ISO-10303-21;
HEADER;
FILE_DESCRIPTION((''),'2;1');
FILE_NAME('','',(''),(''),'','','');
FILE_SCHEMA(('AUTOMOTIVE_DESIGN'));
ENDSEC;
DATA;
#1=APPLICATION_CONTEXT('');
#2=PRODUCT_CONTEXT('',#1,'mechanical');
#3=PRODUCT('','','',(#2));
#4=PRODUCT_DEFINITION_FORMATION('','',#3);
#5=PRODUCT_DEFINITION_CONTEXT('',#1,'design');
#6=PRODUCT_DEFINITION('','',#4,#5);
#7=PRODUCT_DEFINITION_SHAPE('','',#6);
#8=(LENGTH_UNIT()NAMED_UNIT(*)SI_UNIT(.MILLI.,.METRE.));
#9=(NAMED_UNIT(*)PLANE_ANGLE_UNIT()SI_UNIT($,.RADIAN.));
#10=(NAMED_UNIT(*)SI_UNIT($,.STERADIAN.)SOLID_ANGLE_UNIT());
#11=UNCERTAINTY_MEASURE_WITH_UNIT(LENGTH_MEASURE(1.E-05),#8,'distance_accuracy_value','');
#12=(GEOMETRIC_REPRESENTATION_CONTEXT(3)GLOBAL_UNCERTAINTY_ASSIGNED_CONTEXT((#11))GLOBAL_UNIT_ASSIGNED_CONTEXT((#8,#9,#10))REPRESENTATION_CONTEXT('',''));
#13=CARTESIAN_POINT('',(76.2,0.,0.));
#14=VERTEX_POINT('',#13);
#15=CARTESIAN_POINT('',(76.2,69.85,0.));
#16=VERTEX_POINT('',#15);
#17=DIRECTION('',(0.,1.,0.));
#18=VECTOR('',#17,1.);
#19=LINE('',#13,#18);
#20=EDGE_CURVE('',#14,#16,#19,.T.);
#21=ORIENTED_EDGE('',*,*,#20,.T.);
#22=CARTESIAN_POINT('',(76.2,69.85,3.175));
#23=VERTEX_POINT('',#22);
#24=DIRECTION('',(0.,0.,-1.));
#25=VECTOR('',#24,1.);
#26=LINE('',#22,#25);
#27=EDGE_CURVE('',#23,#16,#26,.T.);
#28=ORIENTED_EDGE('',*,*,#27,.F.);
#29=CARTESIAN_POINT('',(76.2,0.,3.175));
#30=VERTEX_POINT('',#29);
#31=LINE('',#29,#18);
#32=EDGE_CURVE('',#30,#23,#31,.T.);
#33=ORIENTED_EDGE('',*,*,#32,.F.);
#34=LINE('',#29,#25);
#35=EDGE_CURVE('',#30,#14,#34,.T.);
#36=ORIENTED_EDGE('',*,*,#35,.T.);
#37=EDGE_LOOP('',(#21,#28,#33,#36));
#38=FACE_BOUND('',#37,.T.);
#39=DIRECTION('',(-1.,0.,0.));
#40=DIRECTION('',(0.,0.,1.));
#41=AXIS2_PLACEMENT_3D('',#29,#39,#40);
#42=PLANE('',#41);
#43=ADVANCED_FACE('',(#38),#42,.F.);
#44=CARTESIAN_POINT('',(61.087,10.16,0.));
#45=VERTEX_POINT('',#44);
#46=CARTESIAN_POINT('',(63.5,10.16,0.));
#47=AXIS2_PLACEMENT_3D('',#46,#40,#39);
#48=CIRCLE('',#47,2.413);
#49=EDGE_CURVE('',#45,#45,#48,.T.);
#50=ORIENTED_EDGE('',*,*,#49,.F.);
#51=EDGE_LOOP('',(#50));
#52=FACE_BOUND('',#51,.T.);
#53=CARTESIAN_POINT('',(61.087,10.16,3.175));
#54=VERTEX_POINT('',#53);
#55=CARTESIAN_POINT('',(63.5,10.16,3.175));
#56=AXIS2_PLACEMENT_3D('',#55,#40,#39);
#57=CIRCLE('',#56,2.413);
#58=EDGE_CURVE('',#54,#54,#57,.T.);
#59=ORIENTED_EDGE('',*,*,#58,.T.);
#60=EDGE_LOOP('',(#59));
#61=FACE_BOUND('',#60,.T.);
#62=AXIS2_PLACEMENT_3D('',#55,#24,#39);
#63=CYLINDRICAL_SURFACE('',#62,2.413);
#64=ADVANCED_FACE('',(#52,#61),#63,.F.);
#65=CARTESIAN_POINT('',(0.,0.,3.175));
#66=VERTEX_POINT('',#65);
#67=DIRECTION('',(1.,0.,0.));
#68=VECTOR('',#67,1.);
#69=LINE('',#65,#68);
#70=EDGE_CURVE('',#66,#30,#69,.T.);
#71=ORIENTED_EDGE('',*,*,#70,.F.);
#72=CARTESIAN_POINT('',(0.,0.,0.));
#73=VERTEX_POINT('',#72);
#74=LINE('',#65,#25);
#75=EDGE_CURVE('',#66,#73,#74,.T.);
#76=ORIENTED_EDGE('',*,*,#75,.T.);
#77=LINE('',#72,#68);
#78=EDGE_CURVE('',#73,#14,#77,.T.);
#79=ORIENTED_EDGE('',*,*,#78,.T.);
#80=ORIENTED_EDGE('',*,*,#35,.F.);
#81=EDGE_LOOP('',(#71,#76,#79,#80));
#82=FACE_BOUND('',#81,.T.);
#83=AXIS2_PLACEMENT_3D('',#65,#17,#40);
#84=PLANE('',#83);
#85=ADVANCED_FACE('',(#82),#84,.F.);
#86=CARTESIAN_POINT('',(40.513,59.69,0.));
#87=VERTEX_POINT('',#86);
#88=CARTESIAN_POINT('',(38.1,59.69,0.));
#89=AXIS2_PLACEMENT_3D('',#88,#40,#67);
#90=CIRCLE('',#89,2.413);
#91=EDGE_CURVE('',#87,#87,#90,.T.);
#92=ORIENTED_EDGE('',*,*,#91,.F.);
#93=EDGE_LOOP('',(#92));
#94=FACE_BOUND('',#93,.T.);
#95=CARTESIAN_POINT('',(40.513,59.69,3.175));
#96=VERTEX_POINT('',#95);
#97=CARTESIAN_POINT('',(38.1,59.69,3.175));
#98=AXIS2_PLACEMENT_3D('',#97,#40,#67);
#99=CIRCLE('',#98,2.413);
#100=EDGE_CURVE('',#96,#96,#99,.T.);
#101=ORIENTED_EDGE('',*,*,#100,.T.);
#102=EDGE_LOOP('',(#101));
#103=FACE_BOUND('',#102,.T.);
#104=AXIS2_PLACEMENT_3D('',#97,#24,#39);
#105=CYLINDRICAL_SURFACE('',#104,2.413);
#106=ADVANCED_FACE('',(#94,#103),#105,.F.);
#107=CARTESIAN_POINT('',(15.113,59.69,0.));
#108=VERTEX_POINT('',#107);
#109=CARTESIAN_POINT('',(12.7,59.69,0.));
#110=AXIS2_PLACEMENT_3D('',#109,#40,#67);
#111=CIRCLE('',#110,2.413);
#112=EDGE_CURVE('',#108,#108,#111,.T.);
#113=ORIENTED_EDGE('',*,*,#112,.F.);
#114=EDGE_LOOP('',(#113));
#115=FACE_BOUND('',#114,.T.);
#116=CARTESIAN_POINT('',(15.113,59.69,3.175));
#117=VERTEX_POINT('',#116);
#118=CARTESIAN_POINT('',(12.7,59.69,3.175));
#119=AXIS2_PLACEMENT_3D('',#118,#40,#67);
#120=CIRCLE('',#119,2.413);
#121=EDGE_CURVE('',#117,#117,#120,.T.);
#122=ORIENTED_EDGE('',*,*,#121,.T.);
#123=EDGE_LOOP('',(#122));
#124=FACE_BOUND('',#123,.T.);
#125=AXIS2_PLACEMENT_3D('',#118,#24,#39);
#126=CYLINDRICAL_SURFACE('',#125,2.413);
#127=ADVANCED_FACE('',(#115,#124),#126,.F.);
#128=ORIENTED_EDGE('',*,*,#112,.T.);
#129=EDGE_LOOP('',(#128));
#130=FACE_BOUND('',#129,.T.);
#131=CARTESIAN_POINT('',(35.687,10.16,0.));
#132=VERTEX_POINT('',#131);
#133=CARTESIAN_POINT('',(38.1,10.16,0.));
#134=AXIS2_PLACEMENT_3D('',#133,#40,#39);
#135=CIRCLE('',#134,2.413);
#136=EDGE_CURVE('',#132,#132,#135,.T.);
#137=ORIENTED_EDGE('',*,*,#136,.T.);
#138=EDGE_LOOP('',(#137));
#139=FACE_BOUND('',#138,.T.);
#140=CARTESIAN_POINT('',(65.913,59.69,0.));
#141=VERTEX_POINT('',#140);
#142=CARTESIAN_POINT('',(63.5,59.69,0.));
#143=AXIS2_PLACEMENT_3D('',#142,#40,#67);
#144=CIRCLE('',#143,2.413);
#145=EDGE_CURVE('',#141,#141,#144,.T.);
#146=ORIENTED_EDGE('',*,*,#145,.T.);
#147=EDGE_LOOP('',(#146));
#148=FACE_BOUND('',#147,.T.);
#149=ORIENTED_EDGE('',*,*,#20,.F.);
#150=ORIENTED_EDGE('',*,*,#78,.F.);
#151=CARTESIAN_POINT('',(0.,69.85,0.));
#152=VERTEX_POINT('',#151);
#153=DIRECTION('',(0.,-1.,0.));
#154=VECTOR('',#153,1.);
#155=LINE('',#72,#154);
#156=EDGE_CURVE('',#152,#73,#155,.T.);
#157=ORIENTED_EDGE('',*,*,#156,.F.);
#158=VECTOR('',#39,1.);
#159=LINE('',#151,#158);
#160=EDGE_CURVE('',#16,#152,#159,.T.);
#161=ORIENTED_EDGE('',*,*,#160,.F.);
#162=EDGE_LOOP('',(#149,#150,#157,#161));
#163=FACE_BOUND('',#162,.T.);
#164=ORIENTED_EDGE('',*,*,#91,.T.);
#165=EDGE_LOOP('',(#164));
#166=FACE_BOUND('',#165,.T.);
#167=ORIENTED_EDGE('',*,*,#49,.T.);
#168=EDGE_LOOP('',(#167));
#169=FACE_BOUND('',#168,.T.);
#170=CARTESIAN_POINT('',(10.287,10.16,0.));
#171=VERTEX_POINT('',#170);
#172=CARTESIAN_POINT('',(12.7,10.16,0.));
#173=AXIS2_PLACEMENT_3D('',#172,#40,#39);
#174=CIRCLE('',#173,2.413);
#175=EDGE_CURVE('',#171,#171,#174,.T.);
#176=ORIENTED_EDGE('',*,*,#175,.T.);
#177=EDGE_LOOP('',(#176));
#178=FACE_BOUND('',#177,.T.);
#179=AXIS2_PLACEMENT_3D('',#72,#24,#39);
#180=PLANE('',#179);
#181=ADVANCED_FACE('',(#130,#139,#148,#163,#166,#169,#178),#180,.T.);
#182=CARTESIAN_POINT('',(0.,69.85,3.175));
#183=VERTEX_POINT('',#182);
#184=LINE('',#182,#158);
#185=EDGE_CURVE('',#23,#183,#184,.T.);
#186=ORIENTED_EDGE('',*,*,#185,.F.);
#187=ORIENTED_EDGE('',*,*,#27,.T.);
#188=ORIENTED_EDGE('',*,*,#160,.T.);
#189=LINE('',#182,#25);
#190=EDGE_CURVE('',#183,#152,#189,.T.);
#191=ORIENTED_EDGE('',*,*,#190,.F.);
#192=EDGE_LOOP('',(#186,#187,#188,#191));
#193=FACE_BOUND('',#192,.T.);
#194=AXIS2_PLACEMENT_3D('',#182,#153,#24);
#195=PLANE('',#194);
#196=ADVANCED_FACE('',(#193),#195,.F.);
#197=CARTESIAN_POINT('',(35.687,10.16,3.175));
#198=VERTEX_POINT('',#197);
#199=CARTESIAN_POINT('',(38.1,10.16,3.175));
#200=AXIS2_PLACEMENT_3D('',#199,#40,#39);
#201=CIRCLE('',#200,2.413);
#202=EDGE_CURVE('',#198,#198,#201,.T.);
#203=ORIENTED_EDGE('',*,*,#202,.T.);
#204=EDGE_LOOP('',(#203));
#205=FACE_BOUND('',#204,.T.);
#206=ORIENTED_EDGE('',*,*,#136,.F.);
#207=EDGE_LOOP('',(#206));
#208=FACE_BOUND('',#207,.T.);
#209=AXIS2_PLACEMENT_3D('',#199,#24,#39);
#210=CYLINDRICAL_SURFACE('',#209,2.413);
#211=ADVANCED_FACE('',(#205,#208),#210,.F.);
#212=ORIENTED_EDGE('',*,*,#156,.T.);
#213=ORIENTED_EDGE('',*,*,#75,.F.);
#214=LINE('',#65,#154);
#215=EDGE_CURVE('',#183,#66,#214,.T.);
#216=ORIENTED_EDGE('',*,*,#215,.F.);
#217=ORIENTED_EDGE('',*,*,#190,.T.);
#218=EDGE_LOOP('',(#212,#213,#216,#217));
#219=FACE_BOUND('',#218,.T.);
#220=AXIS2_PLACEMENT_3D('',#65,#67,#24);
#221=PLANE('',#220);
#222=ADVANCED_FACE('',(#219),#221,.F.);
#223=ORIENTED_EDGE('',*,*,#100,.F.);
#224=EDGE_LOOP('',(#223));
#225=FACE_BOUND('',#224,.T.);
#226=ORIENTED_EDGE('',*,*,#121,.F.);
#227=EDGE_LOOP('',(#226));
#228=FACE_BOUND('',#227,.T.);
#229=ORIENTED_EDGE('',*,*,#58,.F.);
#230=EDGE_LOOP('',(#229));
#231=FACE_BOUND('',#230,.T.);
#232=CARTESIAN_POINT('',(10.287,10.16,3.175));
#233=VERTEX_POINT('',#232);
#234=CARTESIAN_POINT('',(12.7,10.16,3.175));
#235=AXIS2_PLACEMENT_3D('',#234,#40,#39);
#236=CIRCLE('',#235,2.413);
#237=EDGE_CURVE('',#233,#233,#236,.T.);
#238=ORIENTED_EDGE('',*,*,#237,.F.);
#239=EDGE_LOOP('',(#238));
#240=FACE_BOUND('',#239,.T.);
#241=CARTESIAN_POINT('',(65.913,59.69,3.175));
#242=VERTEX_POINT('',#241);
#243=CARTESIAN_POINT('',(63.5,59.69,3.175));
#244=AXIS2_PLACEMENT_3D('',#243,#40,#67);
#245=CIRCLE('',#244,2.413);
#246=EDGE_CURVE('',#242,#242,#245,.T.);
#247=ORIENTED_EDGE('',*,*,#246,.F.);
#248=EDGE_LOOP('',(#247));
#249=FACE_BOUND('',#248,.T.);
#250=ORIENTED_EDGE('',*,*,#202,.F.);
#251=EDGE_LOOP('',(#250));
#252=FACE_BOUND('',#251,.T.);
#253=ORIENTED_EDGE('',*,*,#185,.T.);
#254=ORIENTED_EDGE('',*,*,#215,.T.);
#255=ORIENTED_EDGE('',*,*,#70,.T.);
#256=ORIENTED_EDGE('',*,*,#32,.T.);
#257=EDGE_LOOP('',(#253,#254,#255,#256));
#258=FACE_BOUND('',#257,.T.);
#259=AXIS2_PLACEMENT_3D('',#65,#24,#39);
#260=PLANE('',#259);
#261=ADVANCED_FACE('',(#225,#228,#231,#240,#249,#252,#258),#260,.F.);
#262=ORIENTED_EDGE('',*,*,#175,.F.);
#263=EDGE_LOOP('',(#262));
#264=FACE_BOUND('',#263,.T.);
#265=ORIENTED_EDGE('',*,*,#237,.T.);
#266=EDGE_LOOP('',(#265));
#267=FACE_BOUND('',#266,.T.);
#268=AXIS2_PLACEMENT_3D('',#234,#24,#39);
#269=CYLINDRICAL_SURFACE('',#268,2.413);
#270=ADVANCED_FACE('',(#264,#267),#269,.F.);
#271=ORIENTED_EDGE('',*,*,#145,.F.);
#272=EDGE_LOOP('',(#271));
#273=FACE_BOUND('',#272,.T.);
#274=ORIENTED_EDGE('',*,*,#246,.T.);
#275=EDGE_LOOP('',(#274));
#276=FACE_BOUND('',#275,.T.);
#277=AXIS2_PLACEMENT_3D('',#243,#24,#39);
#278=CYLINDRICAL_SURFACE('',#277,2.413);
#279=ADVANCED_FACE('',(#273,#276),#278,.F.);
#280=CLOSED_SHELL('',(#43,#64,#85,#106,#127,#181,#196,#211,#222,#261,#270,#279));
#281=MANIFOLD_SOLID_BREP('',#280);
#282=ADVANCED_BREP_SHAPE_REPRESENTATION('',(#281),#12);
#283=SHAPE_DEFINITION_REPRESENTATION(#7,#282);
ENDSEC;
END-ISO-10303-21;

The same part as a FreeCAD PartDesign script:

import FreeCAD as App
import Part
import Sketcher

V = App.Vector
Q = App.Units.Quantity

doc = App.newDocument("Part")
body = doc.addObject("PartDesign::Body", "Body")

# Sketch on XY plane
sketch1 = body.newObject("Sketcher::SketchObject", "Sketch")
sketch1.AttachmentSupport = (doc.getObject("XY_Plane"), [""])
sketch1.MapMode = "FlatFace"
sketch1.addGeometry([
    Part.LineSegment(V(0, 69.85, 0), V(0, 0, 0)),  # 0
    Part.LineSegment(V(0, 0, 0), V(76.2, 0, 0)),  # 1
    Part.LineSegment(V(76.2, 0, 0), V(76.2, 69.85, 0)),  # 2
    Part.LineSegment(V(76.2, 69.85, 0), V(0, 69.85, 0)),  # 3
    Part.Circle(V(12.7, 10.16, 0), V(0, 0, 1), 2.413),  # 4
    Part.Circle(V(38.1, 10.16, 0), V(0, 0, 1), 2.413),  # 5
    Part.Circle(V(63.5, 10.16, 0), V(0, 0, 1), 2.413),  # 6
    Part.Circle(V(12.7, 59.69, 0), V(0, 0, 1), 2.413),  # 7
    Part.Circle(V(38.1, 59.69, 0), V(0, 0, 1), 2.413),  # 8
    Part.Circle(V(63.5, 59.69, 0), V(0, 0, 1), 2.413),  # 9
], False)
sketch1.addConstraint([
    Sketcher.Constraint("Coincident", 0, 2, 1, 1),
    Sketcher.Constraint("Coincident", 1, 2, 2, 1),
    Sketcher.Constraint("Coincident", 2, 2, 3, 1),
    Sketcher.Constraint("Coincident", 3, 2, 0, 1),
    Sketcher.Constraint("Vertical", 0),
    Sketcher.Constraint("Horizontal", 1),
    Sketcher.Constraint("Vertical", 2),
    Sketcher.Constraint("Horizontal", 3),
    Sketcher.Constraint("Coincident", 0, 2, -1, 1),
    Sketcher.Constraint("Equal", 4, 5),
    Sketcher.Constraint("Equal", 5, 6),
    Sketcher.Constraint("Equal", 6, 7),
    Sketcher.Constraint("Equal", 7, 8),
    Sketcher.Constraint("Equal", 8, 9),
    Sketcher.Constraint("Horizontal", 4, 3, 5, 3),
    Sketcher.Constraint("Horizontal", 5, 3, 6, 3),
    Sketcher.Constraint("Horizontal", 7, 3, 8, 3),
    Sketcher.Constraint("Horizontal", 8, 3, 9, 3),
    Sketcher.Constraint("Vertical", 4, 3, 7, 3),
    Sketcher.Constraint("Vertical", 5, 3, 8, 3),
    Sketcher.Constraint("Vertical", 6, 3, 9, 3),
    Sketcher.Constraint("Diameter", 4, Q("0.19 in")),
    Sketcher.Constraint("DistanceX", 1, 1, 1, 2, Q("3 in")),
    Sketcher.Constraint("DistanceX", 4, 3, 5, 3, Q("1 in")),
    Sketcher.Constraint("DistanceX", 5, 3, 6, 3, Q("1 in")),
    Sketcher.Constraint("DistanceY", 0, 2, 0, 1, Q("2.75 in")),
    Sketcher.Constraint("DistanceX", -1, 1, 4, 3, Q("0.5 in")),
    Sketcher.Constraint("DistanceY", -1, 1, 4, 3, Q("0.4 in")),
    Sketcher.Constraint("DistanceY", 9, 3, 2, 2, Q("0.4 in")),
])
pad1 = body.newObject("PartDesign::Pad", "Pad")
pad1.Profile = sketch1
pad1.Length = Q("0.125 in")

doc.recompute()
